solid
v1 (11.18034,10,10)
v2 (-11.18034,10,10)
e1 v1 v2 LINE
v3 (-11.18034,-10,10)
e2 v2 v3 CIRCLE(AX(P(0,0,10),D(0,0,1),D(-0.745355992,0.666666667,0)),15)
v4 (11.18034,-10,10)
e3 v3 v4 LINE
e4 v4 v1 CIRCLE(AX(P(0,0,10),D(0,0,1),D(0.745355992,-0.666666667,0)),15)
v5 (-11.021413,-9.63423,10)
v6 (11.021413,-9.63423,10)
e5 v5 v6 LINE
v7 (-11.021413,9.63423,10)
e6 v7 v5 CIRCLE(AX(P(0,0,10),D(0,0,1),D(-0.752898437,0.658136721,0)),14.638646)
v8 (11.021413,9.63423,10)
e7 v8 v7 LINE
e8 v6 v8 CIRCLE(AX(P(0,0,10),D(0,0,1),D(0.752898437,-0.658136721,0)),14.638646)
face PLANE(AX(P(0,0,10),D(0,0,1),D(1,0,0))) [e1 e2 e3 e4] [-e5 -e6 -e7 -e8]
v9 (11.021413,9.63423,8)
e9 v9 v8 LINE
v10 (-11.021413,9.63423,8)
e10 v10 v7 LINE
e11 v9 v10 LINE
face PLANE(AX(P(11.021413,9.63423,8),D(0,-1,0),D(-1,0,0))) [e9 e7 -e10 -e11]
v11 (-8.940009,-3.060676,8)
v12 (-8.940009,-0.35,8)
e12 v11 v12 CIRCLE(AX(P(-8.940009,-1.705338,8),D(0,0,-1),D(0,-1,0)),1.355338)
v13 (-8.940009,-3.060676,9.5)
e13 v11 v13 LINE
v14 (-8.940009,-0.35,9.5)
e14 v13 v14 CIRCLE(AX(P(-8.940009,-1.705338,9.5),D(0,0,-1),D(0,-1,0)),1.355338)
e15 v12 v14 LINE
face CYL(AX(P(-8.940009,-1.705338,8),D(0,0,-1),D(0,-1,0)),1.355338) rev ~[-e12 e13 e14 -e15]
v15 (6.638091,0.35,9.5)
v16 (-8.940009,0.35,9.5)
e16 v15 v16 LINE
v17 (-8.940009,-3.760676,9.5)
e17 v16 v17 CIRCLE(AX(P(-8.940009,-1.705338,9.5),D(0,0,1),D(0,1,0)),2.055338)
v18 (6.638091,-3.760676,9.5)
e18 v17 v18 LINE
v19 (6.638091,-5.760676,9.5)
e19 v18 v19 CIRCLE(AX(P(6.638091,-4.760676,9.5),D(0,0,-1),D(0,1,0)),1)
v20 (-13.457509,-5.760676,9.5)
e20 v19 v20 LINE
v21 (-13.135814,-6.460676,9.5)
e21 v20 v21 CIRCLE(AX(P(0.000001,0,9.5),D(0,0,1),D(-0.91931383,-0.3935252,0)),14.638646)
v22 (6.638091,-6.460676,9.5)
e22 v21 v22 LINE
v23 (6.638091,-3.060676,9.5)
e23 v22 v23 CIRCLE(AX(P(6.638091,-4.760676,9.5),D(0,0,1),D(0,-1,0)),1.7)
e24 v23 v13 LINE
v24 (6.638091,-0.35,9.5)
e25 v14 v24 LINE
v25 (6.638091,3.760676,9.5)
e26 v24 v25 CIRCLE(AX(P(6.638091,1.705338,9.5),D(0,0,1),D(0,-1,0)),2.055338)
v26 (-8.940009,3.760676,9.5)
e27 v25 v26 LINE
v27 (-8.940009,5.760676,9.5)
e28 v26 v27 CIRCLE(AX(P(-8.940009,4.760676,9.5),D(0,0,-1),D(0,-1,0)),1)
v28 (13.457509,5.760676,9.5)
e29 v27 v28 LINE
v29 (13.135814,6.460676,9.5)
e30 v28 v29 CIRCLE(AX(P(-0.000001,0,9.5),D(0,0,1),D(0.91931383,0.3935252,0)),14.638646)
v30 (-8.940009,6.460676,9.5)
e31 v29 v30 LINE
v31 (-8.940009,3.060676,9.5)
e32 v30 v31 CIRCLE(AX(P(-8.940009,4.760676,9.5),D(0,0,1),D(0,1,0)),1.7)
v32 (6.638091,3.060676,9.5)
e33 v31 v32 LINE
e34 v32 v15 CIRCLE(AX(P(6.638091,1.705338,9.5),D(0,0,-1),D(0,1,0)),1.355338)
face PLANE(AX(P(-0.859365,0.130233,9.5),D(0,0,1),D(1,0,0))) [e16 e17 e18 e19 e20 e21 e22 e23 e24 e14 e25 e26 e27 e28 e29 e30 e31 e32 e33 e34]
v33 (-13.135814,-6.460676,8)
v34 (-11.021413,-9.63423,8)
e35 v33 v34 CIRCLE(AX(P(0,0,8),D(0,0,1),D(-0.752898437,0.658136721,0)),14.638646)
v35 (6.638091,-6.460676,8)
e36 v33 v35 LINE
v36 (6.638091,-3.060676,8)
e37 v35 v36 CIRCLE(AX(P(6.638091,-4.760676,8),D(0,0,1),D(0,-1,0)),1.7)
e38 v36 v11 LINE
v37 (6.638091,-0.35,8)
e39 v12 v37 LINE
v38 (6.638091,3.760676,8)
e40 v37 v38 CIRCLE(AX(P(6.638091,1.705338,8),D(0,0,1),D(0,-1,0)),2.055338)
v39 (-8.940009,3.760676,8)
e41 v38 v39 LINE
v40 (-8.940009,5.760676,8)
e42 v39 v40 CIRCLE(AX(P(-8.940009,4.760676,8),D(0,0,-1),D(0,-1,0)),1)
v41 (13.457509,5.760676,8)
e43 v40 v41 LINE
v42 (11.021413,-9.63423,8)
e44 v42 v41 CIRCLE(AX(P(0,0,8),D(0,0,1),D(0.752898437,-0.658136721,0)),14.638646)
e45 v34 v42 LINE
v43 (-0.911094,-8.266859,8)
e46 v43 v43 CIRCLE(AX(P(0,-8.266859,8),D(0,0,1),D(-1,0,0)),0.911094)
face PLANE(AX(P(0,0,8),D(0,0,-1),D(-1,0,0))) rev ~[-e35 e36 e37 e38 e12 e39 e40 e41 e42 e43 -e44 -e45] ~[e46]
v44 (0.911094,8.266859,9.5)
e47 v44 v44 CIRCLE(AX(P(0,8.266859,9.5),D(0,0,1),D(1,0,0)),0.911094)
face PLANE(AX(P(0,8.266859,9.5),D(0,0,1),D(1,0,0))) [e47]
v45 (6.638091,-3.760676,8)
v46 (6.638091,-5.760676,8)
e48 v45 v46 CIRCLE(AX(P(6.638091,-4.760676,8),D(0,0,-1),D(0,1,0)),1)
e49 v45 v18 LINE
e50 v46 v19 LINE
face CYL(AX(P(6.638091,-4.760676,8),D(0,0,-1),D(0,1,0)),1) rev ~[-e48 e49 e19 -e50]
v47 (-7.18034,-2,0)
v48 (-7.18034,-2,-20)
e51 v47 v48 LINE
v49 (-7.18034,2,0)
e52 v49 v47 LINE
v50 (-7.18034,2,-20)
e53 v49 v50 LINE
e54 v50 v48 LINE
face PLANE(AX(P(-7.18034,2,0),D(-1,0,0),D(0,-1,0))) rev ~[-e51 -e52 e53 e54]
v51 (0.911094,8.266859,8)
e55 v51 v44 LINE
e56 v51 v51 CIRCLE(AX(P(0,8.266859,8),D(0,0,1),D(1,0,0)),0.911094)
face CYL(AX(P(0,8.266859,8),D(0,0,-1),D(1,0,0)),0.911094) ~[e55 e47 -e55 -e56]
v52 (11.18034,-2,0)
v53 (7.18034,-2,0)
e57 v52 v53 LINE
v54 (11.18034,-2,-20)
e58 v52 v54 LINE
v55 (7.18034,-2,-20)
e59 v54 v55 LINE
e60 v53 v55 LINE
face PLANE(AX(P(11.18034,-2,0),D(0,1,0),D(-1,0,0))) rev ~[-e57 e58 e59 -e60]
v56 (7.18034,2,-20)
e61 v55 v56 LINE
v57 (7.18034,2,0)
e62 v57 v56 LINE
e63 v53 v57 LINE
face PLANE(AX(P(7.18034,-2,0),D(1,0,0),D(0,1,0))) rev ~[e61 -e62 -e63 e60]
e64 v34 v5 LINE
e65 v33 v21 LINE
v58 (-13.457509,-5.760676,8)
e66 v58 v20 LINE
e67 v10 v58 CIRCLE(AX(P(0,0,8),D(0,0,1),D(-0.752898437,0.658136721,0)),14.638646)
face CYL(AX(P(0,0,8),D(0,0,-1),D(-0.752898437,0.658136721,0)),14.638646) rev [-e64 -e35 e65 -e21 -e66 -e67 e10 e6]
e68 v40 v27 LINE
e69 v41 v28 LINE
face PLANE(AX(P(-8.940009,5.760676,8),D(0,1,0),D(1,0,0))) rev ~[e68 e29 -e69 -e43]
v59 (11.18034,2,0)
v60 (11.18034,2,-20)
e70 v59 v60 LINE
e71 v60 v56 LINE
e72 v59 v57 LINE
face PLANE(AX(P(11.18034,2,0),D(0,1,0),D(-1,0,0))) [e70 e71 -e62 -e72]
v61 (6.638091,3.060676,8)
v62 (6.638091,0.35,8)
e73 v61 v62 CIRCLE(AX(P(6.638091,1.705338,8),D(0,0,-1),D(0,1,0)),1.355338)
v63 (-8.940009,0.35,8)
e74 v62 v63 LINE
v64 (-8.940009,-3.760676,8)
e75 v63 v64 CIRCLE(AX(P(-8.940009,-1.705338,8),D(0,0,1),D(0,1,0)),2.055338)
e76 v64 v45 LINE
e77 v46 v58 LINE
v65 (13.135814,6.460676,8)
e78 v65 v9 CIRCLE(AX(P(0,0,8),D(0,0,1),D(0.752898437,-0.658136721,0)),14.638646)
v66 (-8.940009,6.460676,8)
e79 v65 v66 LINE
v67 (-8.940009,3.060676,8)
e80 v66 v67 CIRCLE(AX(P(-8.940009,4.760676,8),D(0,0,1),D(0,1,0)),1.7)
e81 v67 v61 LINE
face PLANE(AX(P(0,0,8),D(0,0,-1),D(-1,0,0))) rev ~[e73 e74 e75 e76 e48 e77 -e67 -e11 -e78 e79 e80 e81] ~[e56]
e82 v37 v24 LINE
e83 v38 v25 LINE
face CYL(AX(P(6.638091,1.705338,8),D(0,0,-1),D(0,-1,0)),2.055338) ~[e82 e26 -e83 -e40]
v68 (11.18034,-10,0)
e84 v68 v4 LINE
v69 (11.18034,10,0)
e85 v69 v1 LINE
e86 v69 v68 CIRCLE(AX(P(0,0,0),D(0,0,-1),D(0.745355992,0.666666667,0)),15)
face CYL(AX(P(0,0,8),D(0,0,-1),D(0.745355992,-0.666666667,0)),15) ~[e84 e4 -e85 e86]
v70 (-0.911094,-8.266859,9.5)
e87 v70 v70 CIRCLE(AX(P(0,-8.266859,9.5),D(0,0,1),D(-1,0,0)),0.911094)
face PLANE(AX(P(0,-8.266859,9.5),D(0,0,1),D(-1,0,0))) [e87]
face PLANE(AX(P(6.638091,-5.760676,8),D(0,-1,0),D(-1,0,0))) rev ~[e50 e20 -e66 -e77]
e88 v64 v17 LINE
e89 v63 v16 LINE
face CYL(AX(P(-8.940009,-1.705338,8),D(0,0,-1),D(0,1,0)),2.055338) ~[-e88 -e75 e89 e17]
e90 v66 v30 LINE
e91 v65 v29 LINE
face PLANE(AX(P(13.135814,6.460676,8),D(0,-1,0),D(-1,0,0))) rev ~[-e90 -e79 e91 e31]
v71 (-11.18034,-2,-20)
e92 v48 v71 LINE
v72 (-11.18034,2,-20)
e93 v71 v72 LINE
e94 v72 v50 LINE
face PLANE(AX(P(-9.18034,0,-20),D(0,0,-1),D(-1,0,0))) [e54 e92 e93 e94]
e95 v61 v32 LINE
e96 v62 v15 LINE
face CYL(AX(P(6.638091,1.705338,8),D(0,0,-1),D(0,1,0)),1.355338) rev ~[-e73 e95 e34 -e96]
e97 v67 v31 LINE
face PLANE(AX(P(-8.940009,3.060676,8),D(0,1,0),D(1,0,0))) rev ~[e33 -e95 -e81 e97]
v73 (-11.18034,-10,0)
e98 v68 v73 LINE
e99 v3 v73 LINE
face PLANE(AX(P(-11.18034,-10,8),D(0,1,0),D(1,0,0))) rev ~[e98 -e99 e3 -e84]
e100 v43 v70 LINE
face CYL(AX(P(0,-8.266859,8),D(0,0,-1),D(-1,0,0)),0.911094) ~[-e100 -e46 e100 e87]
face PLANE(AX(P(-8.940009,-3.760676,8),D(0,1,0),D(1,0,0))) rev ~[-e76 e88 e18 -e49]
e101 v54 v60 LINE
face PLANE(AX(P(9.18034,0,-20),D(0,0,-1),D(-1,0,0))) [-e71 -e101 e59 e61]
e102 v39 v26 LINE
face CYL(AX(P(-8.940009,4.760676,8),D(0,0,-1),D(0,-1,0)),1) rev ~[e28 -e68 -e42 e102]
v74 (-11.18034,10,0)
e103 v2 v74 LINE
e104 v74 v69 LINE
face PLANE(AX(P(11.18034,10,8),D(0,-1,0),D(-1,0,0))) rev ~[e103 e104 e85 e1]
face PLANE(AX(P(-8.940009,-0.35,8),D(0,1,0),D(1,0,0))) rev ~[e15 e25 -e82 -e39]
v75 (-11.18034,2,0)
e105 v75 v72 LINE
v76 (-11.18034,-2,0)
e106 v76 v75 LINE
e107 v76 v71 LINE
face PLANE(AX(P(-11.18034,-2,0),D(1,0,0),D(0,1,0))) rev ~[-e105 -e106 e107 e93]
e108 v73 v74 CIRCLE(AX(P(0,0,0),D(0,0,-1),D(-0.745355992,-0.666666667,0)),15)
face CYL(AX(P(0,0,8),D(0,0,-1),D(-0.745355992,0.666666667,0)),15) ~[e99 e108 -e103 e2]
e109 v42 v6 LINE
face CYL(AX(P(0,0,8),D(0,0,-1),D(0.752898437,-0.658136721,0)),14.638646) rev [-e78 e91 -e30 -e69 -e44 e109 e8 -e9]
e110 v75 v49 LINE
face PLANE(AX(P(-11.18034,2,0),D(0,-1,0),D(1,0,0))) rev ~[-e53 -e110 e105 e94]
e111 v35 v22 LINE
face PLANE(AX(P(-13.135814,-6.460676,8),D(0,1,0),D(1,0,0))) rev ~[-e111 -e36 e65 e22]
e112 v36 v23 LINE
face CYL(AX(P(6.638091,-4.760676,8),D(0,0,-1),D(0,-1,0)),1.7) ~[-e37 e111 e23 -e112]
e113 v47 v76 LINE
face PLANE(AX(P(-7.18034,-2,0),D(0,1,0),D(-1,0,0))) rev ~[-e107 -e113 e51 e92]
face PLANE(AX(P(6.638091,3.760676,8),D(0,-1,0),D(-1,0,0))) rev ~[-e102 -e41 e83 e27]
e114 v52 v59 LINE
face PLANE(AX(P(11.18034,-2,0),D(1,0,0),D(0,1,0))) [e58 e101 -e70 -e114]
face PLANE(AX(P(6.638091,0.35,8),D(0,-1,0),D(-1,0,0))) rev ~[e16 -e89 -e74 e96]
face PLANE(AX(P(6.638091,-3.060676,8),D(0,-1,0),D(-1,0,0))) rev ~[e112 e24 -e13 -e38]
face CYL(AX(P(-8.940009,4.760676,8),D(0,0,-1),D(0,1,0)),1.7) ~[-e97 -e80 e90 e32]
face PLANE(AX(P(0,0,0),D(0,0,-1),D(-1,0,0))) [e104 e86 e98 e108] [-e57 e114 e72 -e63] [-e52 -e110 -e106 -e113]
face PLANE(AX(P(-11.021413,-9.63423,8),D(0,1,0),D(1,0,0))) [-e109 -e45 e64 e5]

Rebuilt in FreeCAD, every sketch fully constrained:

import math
import FreeCAD as App
import Part
import Sketcher

doc = App.newDocument("Part")
params = doc.addObject("Spreadsheet::Sheet", "Params")
for row, (alias, value) in enumerate([
    ("sketch1_radius", "15 mm"),
    ("pad1_length", "8 mm"),
    ("sketch2_width", "4 mm"),
    ("pad2_length", "20 mm"),
    ("sketch3_radius", "15 mm"),
    ("pad3_length", "2 mm"),
    ("sketch4_radius", "1 mm"),
    ("sketch4_radius2", "1.7 mm"),
    ("pad4_length", "1.5 mm"),
], start=1):
    params.set(f"A{row}", alias)
    params.set(f"B{row}", "=" + value)
    params.setAlias(f"B{row}", alias)

body = doc.addObject("PartDesign::Body", "Body")

# Sketch on XY plane
sketch1 = body.newObject("Sketcher::SketchObject", "Sketch")
sketch1.AttachmentSupport = (doc.getObject("XY_Plane"), [""])
sketch1.MapMode = "FlatFace"
sketch1.addGeometry([
    Part.LineSegment(App.Vector(11, 10, 0), App.Vector(-11, 10, 0)),
    Part.ArcOfCircle(Part.Circle(App.Vector(0, 0, 0), App.Vector(0, 0, 1), 15), math.radians(138), math.radians(222)),
    Part.LineSegment(App.Vector(-11, -10, 0), App.Vector(11, -10, 0)),
    Part.ArcOfCircle(Part.Circle(App.Vector(0, 0, 0), App.Vector(0, 0, 1), 15), math.radians(-42), math.radians(42)),
], False)
sketch1.addConstraint([
    Sketcher.Constraint("Coincident", 0, 2, 1, 1),
    Sketcher.Constraint("Coincident", 1, 2, 2, 1),
    Sketcher.Constraint("Coincident", 2, 2, 3, 1),
    Sketcher.Constraint("Coincident", 3, 2, 0, 1),
    Sketcher.Constraint("Horizontal", 0),
    Sketcher.Constraint("Horizontal", 2),
    Sketcher.Constraint("Coincident", 1, 3, -1, 1),
    Sketcher.Constraint("Coincident", 3, 3, -1, 1),
    Sketcher.Constraint("Equal", 1, 3),
    Sketcher.Constraint("Vertical", 0, 2, 1, 2),
    Sketcher.Constraint("Radius", 1, 15.0),
    Sketcher.Constraint("DistanceY", -1, 1, 0, 2, 10.0),
])
sketch1.setExpression("Constraints[10]", "Params.sketch1_radius")
pad1 = body.newObject("PartDesign::Pad", "Pad")
pad1.Profile = sketch1
pad1.setExpression("Length", "Params.pad1_length")

# Sketch on XY plane
sketch2 = body.newObject("Sketcher::SketchObject", "Sketch001")
sketch2.AttachmentSupport = (doc.getObject("XY_Plane"), [""])
sketch2.MapMode = "FlatFace"
sketch2.addGeometry([
    Part.LineSegment(App.Vector(11.2, 2, 0), App.Vector(11.2, -2, 0)),  # 0
    Part.LineSegment(App.Vector(11.2, -2, 0), App.Vector(7.2, -2, 0)),  # 1
    Part.LineSegment(App.Vector(7.2, -2, 0), App.Vector(7.2, 2, 0)),  # 2
    Part.LineSegment(App.Vector(7.2, 2, 0), App.Vector(11.2, 2, 0)),  # 3
    Part.LineSegment(App.Vector(-7.2, 2, 0), App.Vector(-7.2, -2, 0)),  # 4
    Part.LineSegment(App.Vector(-7.2, -2, 0), App.Vector(-11.2, -2, 0)),  # 5
    Part.LineSegment(App.Vector(-11.2, -2, 0), App.Vector(-11.2, 2, 0)),  # 6
    Part.LineSegment(App.Vector(-11.2, 2, 0), App.Vector(-7.2, 2, 0)),  # 7
], False)
sketch2.addConstraint([
    Sketcher.Constraint("Coincident", 0, 2, 1, 1),
    Sketcher.Constraint("Coincident", 1, 2, 2, 1),
    Sketcher.Constraint("Coincident", 2, 2, 3, 1),
    Sketcher.Constraint("Coincident", 3, 2, 0, 1),
    Sketcher.Constraint("Coincident", 4, 2, 5, 1),
    Sketcher.Constraint("Coincident", 5, 2, 6, 1),
    Sketcher.Constraint("Coincident", 6, 2, 7, 1),
    Sketcher.Constraint("Coincident", 7, 2, 4, 1),
    Sketcher.Constraint("Vertical", 0),
    Sketcher.Constraint("Horizontal", 1),
    Sketcher.Constraint("Vertical", 2),
    Sketcher.Constraint("Horizontal", 3),
    Sketcher.Constraint("Vertical", 4),
    Sketcher.Constraint("Horizontal", 5),
    Sketcher.Constraint("Vertical", 6),
    Sketcher.Constraint("Horizontal", 7),
    Sketcher.Constraint("Symmetric", 2, 2, 4, 2, -1, 1),
    Sketcher.Constraint("Symmetric", 0, 2, 6, 2, -1, 1),
    Sketcher.Constraint("Horizontal", 1, 2, 4, 2),
    Sketcher.Constraint("Equal", 7, 0),
    Sketcher.Constraint("DistanceX", 1, 2, 1, 1, 4.0),
    Sketcher.Constraint("DistanceX", -1, 1, 0, 2, 11.18034),
])
sketch2.setExpression("Constraints[20]", "Params.sketch2_width")
pad2 = body.newObject("PartDesign::Pad", "Pad001")
pad2.Profile = sketch2
pad2.setExpression("Length", "Params.pad2_length")
pad2.Reversed = True

# Sketch on XY plane
sketch3 = body.newObject("Sketcher::SketchObject", "Sketch002")
sketch3.AttachmentSupport = (doc.getObject("XY_Plane"), [""])
sketch3.MapMode = "FlatFace"
sketch3.AttachmentOffset = App.Placement(App.Vector(0, 0, 8), App.Rotation())
sketch3.addGeometry([
    Part.LineSegment(App.Vector(-11, -10, 0), App.Vector(11, -10, 0)),  # 0
    Part.ArcOfCircle(Part.Circle(App.Vector(0, 0, 0), App.Vector(0, 0, 1), 15), math.radians(-42), math.radians(42)),  # 1
    Part.LineSegment(App.Vector(11, 10, 0), App.Vector(-11, 10, 0)),  # 2
    Part.ArcOfCircle(Part.Circle(App.Vector(0, 0, 0), App.Vector(0, 0, 1), 15), math.radians(138), math.radians(222)),  # 3
    Part.ArcOfCircle(Part.Circle(App.Vector(0, 0, 0), App.Vector(0, 0, 1), 15), math.radians(139), math.radians(221)),  # 4
    Part.LineSegment(App.Vector(-11, 10, 0), App.Vector(11, 10, 0)),  # 5
    Part.ArcOfCircle(Part.Circle(App.Vector(0, 0, 0), App.Vector(0, 0, 1), 15), math.radians(-41), math.radians(41)),  # 6
    Part.LineSegment(App.Vector(11, -10, 0), App.Vector(-11, -10, 0)),  # 7
], False)
sketch3.addConstraint([
    Sketcher.Constraint("Coincident", 0, 2, 1, 1),
    Sketcher.Constraint("Coincident", 1, 2, 2, 1),
    Sketcher.Constraint("Coincident", 2, 2, 3, 1),
    Sketcher.Constraint("Coincident", 3, 2, 0, 1),
    Sketcher.Constraint("Coincident", 4, 1, 5, 1),
    Sketcher.Constraint("Coincident", 5, 2, 6, 2),
    Sketcher.Constraint("Coincident", 6, 1, 7, 1),
    Sketcher.Constraint("Coincident", 7, 2, 4, 2),
    Sketcher.Constraint("Horizontal", 0),
    Sketcher.Constraint("Horizontal", 2),
    Sketcher.Constraint("Horizontal", 5),
    Sketcher.Constraint("Horizontal", 7),
    Sketcher.Constraint("Coincident", 1, 3, -1, 1),
    Sketcher.Constraint("Coincident", 3, 3, -1, 1),
    Sketcher.Constraint("Coincident", 4, 3, -1, 1),
    Sketcher.Constraint("Coincident", 6, 3, -1, 1),
    Sketcher.Constraint("Equal", 1, 3),
    Sketcher.Constraint("Equal", 4, 6),
    Sketcher.Constraint("Vertical", 0, 2, 1, 2),
    Sketcher.Constraint("Vertical", 5, 2, 6, 1),
    Sketcher.Constraint("Radius", 1, 15.0),
    Sketcher.Constraint("DistanceY", 0, 2, -1, 1, 10.0),
    Sketcher.Constraint("Radius", 4, 14.638646),
    Sketcher.Constraint("DistanceX", 5, 1, 5, 2, 22.042827),
])
sketch3.setExpression("Constraints[20]", "Params.sketch3_radius")
pad3 = body.newObject("PartDesign::Pad", "Pad002")
pad3.Profile = sketch3
pad3.setExpression("Length", "Params.pad3_length")

# Sketch on XY plane
sketch4 = body.newObject("Sketcher::SketchObject", "Sketch003")
sketch4.AttachmentSupport = (doc.getObject("XY_Plane"), [""])
sketch4.MapMode = "FlatFace"
sketch4.AttachmentOffset = App.Placement(App.Vector(0, 0, 8), App.Rotation())
sketch4.addGeometry([
    Part.Circle(App.Vector(0, 8.3, 0), App.Vector(0, 0, 1), 0.9),  # 0
    Part.Circle(App.Vector(0, -8.3, 0), App.Vector(0, 0, 1), 0.9),  # 1
    Part.LineSegment(App.Vector(13.1, 6.5, 0), App.Vector(-8.9, 6.5, 0)),  # 2
    Part.ArcOfCircle(Part.Circle(App.Vector(-8.9, 4.8, 0), App.Vector(0, 0, 1), 1.7), math.radians(90), math.radians(270)),  # 3
    Part.LineSegment(App.Vector(-8.9, 3.1, 0), App.Vector(6.6, 3.1, 0)),  # 4
    Part.ArcOfCircle(Part.Circle(App.Vector(6.6, 1.7, 0), App.Vector(0, 0, 1), 1.4), math.radians(-90), math.radians(90)),  # 5
    Part.LineSegment(App.Vector(6.6, 0.3, 0), App.Vector(-8.9, 0.3, 0)),  # 6
    Part.ArcOfCircle(Part.Circle(App.Vector(-8.9, -1.7, 0), App.Vector(0, 0, 1), 2.1), math.radians(90), math.radians(270)),  # 7
    Part.LineSegment(App.Vector(-8.9, -3.8, 0), App.Vector(6.6, -3.8, 0)),  # 8
    Part.ArcOfCircle(Part.Circle(App.Vector(6.6, -4.8, 0), App.Vector(0, 0, 1), 1), math.radians(-90), math.radians(90)),  # 9
    Part.LineSegment(App.Vector(6.6, -5.8, 0), App.Vector(-13.5, -5.8, 0)),  # 10
    Part.ArcOfCircle(Part.Circle(App.Vector(0, 0, 0), App.Vector(0, 0, 1), 14.6), math.radians(-156.83), math.radians(-153.81)),  # 11
    Part.LineSegment(App.Vector(-13.1, -6.5, 0), App.Vector(6.6, -6.5, 0)),  # 12
    Part.ArcOfCircle(Part.Circle(App.Vector(6.6, -4.8, 0), App.Vector(0, 0, 1), 1.7), math.radians(-90), math.radians(90)),  # 13
    Part.LineSegment(App.Vector(6.6, -3.1, 0), App.Vector(-8.9, -3.1, 0)),  # 14
    Part.ArcOfCircle(Part.Circle(App.Vector(-8.9, -1.7, 0), App.Vector(0, 0, 1), 1.4), math.radians(90), math.radians(270)),  # 15
    Part.LineSegment(App.Vector(-8.9, -0.3, 0), App.Vector(6.6, -0.3, 0)),  # 16
    Part.ArcOfCircle(Part.Circle(App.Vector(6.6, 1.7, 0), App.Vector(0, 0, 1), 2.1), math.radians(-90), math.radians(90)),  # 17
    Part.LineSegment(App.Vector(6.6, 3.8, 0), App.Vector(-8.9, 3.8, 0)),  # 18
    Part.ArcOfCircle(Part.Circle(App.Vector(-8.9, 4.8, 0), App.Vector(0, 0, 1), 1), math.radians(90), math.radians(270)),  # 19
    Part.LineSegment(App.Vector(-8.9, 5.8, 0), App.Vector(13.5, 5.8, 0)),  # 20
    Part.ArcOfCircle(Part.Circle(App.Vector(0, 0, 0), App.Vector(0, 0, 1), 14.6), math.radians(23.17), math.radians(26.19)),  # 21
], False)
sketch4.addConstraint([
    Sketcher.Constraint("Tangent", 2, 2, 3, 1),
    Sketcher.Constraint("Tangent", 3, 2, 4, 1),
    Sketcher.Constraint("Tangent", 4, 2, 5, 2),
    Sketcher.Constraint("Tangent", 5, 1, 6, 1),
    Sketcher.Constraint("Tangent", 6, 2, 7, 1),
    Sketcher.Constraint("Tangent", 7, 2, 8, 1),
    Sketcher.Constraint("Tangent", 8, 2, 9, 2),
    Sketcher.Constraint("Tangent", 9, 1, 10, 1),
    Sketcher.Constraint("Coincident", 10, 2, 11, 1),
    Sketcher.Constraint("Coincident", 11, 2, 12, 1),
    Sketcher.Constraint("Tangent", 12, 2, 13, 1),
    Sketcher.Constraint("Tangent", 13, 2, 14, 1),
    Sketcher.Constraint("Tangent", 14, 2, 15, 2),
    Sketcher.Constraint("Tangent", 15, 1, 16, 1),
    Sketcher.Constraint("Tangent", 16, 2, 17, 1),
    Sketcher.Constraint("Tangent", 17, 2, 18, 1),
    Sketcher.Constraint("Tangent", 18, 2, 19, 2),
    Sketcher.Constraint("Tangent", 19, 1, 20, 1),
    Sketcher.Constraint("Coincident", 20, 2, 21, 1),
    Sketcher.Constraint("Coincident", 21, 2, 2, 1),
    Sketcher.Constraint("Horizontal", 2),
    Sketcher.Constraint("Horizontal", 4),
    Sketcher.Constraint("Horizontal", 6),
    Sketcher.Constraint("Horizontal", 8),
    Sketcher.Constraint("Horizontal", 10),
    Sketcher.Constraint("Horizontal", 12),
    Sketcher.Constraint("Horizontal", 14),
    Sketcher.Constraint("Horizontal", 16),
    Sketcher.Constraint("Horizontal", 18),
    Sketcher.Constraint("Horizontal", 20),
    Sketcher.Constraint("Coincident", 11, 3, -1, 1),
    Sketcher.Constraint("Coincident", 21, 3, -1, 1),
    Sketcher.Constraint("Coincident", 13, 3, 9, 3),
    Sketcher.Constraint("Coincident", 15, 3, 7, 3),
    Sketcher.Constraint("Coincident", 17, 3, 5, 3),
    Sketcher.Constraint("Coincident", 19, 3, 3, 3),
    Sketcher.Constraint("Equal", 0, 1),
    Sketcher.Constraint("Equal", 3, 13),
    Sketcher.Constraint("Equal", 5, 15),
    Sketcher.Constraint("Equal", 11, 21),
    Sketcher.Constraint("Symmetric", 0, 3, 1, 3, -1, 1),
    Sketcher.Constraint("Symmetric", 4, 2, 13, 2, -1),
    Sketcher.Constraint("PointOnObject", 0, 3, -2),
    Sketcher.Constraint("Vertical", 3, 3, 7, 3),
    Sketcher.Constraint("Radius", 9, 1.0),
    Sketcher.Constraint("Radius", 3, 1.7),
    Sketcher.Constraint("Diameter", 0, 1.822188),
    Sketcher.Constraint("DistanceX", 4, 1, 4, 2, 15.5781),
    Sketcher.Constraint("DistanceX", 10, 2, 10, 1, 20.0956),
    Sketcher.Constraint("Radius", 5, 1.355338),
    Sketcher.Constraint("Radius", 11, 14.638646),
    Sketcher.Constraint("DistanceY", -1, 1, 0, 3, 8.266859),
])
sketch4.setExpression("Constraints[44]", "Params.sketch4_radius")
sketch4.setExpression("Constraints[45]", "Params.sketch4_radius2")
pad4 = body.newObject("PartDesign::Pad", "Pad003")
pad4.Profile = sketch4
pad4.setExpression("Length", "Params.pad4_length")

doc.recompute()
